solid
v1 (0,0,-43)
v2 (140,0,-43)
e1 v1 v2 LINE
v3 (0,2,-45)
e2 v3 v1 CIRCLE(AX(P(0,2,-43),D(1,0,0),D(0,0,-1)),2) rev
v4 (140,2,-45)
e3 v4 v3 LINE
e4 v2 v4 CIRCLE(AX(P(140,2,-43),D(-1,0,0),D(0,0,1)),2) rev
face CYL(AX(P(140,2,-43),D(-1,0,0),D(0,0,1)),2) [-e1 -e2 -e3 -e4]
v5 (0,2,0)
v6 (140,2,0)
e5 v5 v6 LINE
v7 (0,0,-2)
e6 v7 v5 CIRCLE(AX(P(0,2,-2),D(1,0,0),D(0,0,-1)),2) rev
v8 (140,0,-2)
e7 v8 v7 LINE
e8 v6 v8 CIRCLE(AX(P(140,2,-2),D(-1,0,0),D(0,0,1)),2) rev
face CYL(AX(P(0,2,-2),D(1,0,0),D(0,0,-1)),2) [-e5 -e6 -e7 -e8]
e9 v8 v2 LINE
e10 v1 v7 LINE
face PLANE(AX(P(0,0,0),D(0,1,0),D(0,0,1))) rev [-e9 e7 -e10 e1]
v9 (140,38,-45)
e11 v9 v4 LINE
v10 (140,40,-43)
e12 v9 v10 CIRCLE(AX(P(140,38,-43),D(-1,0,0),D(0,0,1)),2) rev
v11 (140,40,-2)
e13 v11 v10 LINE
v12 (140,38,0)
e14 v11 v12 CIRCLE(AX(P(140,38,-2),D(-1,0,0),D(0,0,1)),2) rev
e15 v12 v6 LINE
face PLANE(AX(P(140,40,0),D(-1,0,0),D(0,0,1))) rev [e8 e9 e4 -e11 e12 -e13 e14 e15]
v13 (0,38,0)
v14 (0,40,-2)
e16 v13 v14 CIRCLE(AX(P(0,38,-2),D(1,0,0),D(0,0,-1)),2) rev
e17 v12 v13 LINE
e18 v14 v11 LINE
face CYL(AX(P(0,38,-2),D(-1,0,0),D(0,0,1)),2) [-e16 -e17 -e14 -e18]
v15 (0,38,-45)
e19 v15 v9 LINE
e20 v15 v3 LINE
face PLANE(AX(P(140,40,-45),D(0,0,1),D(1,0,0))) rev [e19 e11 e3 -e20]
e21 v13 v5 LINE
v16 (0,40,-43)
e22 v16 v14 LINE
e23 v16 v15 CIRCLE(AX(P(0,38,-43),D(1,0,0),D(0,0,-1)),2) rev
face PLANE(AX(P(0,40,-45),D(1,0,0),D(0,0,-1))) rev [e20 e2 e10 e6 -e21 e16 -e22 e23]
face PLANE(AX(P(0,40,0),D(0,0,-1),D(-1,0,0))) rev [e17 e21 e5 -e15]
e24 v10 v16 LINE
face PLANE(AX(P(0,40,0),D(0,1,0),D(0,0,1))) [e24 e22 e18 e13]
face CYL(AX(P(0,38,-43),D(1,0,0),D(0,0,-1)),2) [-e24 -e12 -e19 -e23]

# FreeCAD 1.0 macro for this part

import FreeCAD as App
import Part
import Sketcher
from FreeCAD import Vector


def edges_at(feature, points):
    """Names of the edges that pass closest to the given points."""
    edges = feature.Shape.Edges
    near = lambda p: min(range(len(edges)), key=lambda i: edges[i].distToShape(Part.Vertex(*p))[0])
    return sorted({f"Edge{near(p) + 1}" for p in points})


def add_polygon(sketch, points):
    """Adds a closed chain of lines whose ends are joined by coincident constraints."""
    first, n = sketch.GeometryCount, len(points)
    for a, b in zip(points, points[1:] + points[:1]):
        sketch.addGeometry(Part.LineSegment(App.Vector(*a, 0), App.Vector(*b, 0)), False)
    for i in range(n):
        sketch.addConstraint(Sketcher.Constraint("Coincident", first + i, 2, first + (i + 1) % n, 1))

doc = App.newDocument("Part")
body = doc.addObject("PartDesign::Body", "Body")

# Sketch on XZ plane
sketch1 = body.newObject("Sketcher::SketchObject", "Sketch")
sketch1.AttachmentSupport = (doc.getObject("XZ_Plane"), [""])
sketch1.MapMode = "FlatFace"
add_polygon(sketch1, [(0, -45), (0, 0), (140, 0), (140, -45)])  # lines 0-3
sketch1.addConstraint(Sketcher.Constraint("Vertical", 0))
sketch1.addConstraint(Sketcher.Constraint("Horizontal", 1))
sketch1.addConstraint(Sketcher.Constraint("Vertical", 2))
sketch1.addConstraint(Sketcher.Constraint("Horizontal", 3))
sketch1.addConstraint(Sketcher.Constraint("Coincident", 0, 2, -1, 1))
sketch1.addConstraint(Sketcher.Constraint("DistanceX", 1, 1, 1, 2, 140.0))
sketch1.addConstraint(Sketcher.Constraint("DistanceY", 0, 1, 0, 2, 45.0))
pad1 = body.newObject("PartDesign::Pad", "Pad")
pad1.Profile = sketch1
pad1.Length = 40
pad1.Reversed = True
doc.recompute()

fillet = body.newObject("PartDesign::Fillet", "Fillet")
fillet.Base = (pad1, edges_at(pad1, [
    (70, 40, -45),
    (70, 0, -45),
    (70, 0, 0),
    (70, 40, 0),
]))
fillet.Radius = 2

doc.recompute()
